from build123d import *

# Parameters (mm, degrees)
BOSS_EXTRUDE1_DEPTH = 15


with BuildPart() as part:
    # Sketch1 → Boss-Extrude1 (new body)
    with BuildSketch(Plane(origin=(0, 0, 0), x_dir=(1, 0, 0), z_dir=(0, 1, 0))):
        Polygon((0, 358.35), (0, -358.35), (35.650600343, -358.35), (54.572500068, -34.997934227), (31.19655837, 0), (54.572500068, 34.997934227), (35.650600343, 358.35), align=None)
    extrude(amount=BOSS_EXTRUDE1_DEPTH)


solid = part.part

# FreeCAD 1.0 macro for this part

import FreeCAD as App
import Part
import Sketcher
from FreeCAD import Vector
Q = App.Units.Quantity


def add_polygon(sketch, points):
    """Adds a closed chain of lines whose ends are joined by coincident constraints."""
    first, n = sketch.GeometryCount, len(points)
    for a, b in zip(points, points[1:] + points[:1]):
        sketch.addGeometry(Part.LineSegment(App.Vector(*a, 0), App.Vector(*b, 0)), False)
    for i in range(n):
        sketch.addConstraint(Sketcher.Constraint("Coincident", first + i, 2, first + (i + 1) % n, 1))

doc = App.newDocument("Part")
body = doc.addObject("PartDesign::Body", "Body")

# Sketch on XZ plane
sketch1 = body.newObject("Sketcher::SketchObject", "Sketch")
sketch1.AttachmentSupport = (doc.getObject("XZ_Plane"), [""])
sketch1.MapMode = "FlatFace"
add_polygon(sketch1, [(0, -358.35), (0, 358.35), (35.6506, 358.35), (54.5725, 34.997934), (31.196558, 0), (54.5725, -34.997934), (35.6506, -358.35)])  # lines 0-6
sketch1.addConstraint(Sketcher.Constraint("Vertical", 0))
sketch1.addConstraint(Sketcher.Constraint("Horizontal", 1))
sketch1.addConstraint(Sketcher.Constraint("Horizontal", 6))
sketch1.addConstraint(Sketcher.Constraint("Symmetric", 0, 2, 6, 2, -1, 1))
sketch1.addConstraint(Sketcher.Constraint("Symmetric", 2, 2, 4, 2, -1))
sketch1.addConstraint(Sketcher.Constraint("PointOnObject", 3, 2, -1))
sketch1.addConstraint(Sketcher.Constraint("Vertical", 1, 2, 5, 2))
sketch1.addConstraint(Sketcher.Constraint("DistanceY", 0, 1, 0, 2, Q("716.7 mm")))
sketch1.addConstraint(Sketcher.Constraint("DistanceX", 1, 1, 1, 2, Q("35.6506 mm")))
sketch1.addConstraint(Sketcher.Constraint("DistanceX", -1, 1, 2, 2, Q("54.5725 mm")))
sketch1.addConstraint(Sketcher.Constraint("Distance", 2, Q("323.905228 mm")))
sketch1.addConstraint(Sketcher.Constraint("DistanceX", -1, 1, 3, 2, Q("31.196558 mm")))
pad1 = body.newObject("PartDesign::Pad", "Pad")
pad1.Profile = sketch1
pad1.Length = 15
pad1.Reversed = True

doc.recompute()
